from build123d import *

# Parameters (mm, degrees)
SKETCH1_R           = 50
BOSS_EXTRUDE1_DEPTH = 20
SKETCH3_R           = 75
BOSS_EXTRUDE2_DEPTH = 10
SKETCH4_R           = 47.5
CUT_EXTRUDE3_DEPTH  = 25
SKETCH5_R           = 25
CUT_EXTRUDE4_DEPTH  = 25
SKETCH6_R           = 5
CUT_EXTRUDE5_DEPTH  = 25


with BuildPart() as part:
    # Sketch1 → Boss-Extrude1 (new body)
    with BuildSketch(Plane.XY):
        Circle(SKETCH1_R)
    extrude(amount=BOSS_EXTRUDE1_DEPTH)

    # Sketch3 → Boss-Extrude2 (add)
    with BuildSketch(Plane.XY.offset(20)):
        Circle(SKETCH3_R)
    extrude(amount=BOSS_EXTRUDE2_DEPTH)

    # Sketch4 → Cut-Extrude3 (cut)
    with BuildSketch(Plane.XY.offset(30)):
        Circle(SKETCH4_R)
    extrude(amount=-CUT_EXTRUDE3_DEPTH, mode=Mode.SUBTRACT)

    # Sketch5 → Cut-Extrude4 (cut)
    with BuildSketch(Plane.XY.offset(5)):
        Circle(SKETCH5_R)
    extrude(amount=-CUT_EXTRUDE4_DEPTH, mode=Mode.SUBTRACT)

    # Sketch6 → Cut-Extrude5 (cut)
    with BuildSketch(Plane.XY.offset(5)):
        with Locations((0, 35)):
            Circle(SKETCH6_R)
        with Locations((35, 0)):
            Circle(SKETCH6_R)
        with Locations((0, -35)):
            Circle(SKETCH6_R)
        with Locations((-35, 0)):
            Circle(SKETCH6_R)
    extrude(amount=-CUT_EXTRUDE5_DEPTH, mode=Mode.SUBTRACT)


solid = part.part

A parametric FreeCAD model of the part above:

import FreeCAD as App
import Part
import Sketcher
Q = App.Units.Quantity

doc = App.newDocument("Part")
body = doc.addObject("PartDesign::Body", "Body")

# Sketch on XY plane
sketch1 = body.newObject("Sketcher::SketchObject", "Sketch")
sketch1.AttachmentSupport = (doc.getObject("XY_Plane"), [""])
sketch1.MapMode = "FlatFace"
sketch1.addGeometry(Part.Circle(App.Vector(0, 0, 0), App.Vector(0, 0, 1), 50), False)
sketch1.addConstraint(Sketcher.Constraint("Coincident", 0, 3, -1, 1))
sketch1.addConstraint(Sketcher.Constraint("Diameter", 0, Q("100 mm")))
pad1 = body.newObject("PartDesign::Pad", "Pad")
pad1.Profile = sketch1
pad1.Length = 20

# Sketch on XY plane
sketch2 = body.newObject("Sketcher::SketchObject", "Sketch001")
sketch2.AttachmentSupport = (doc.getObject("XY_Plane"), [""])
sketch2.MapMode = "FlatFace"
sketch2.AttachmentOffset = App.Placement(App.Vector(0, 0, 20), App.Rotation())
sketch2.addGeometry(Part.Circle(App.Vector(0, 0, 0), App.Vector(0, 0, 1), 75), False)
sketch2.addConstraint(Sketcher.Constraint("Coincident", 0, 3, -1, 1))
sketch2.addConstraint(Sketcher.Constraint("Diameter", 0, Q("150 mm")))
pad2 = body.newObject("PartDesign::Pad", "Pad001")
pad2.Profile = sketch2
pad2.Length = 10

# Sketch on XY plane
sketch3 = body.newObject("Sketcher::SketchObject", "Sketch002")
sketch3.AttachmentSupport = (doc.getObject("XY_Plane"), [""])
sketch3.MapMode = "FlatFace"
sketch3.AttachmentOffset = App.Placement(App.Vector(0, 0, 30), App.Rotation())
sketch3.addGeometry(Part.Circle(App.Vector(0, 0, 0), App.Vector(0, 0, 1), 48), False)
sketch3.addConstraint(Sketcher.Constraint("Coincident", 0, 3, -1, 1))
sketch3.addConstraint(Sketcher.Constraint("Diameter", 0, Q("95 mm")))
pocket1 = body.newObject("PartDesign::Pocket", "Pocket")
pocket1.Profile = sketch3
pocket1.Length = 25

# Sketch on XY plane
sketch4 = body.newObject("Sketcher::SketchObject", "Sketch003")
sketch4.AttachmentSupport = (doc.getObject("XY_Plane"), [""])
sketch4.MapMode = "FlatFace"
sketch4.AttachmentOffset = App.Placement(App.Vector(0, 0, 5), App.Rotation())
sketch4.addGeometry(Part.Circle(App.Vector(0, 0, 0), App.Vector(0, 0, 1), 25), False)
sketch4.addConstraint(Sketcher.Constraint("Coincident", 0, 3, -1, 1))
sketch4.addConstraint(Sketcher.Constraint("Diameter", 0, Q("50 mm")))
pocket2 = body.newObject("PartDesign::Pocket", "Pocket001")
pocket2.Profile = sketch4
pocket2.Length = 25

# Sketch on XY plane
sketch5 = body.newObject("Sketcher::SketchObject", "Sketch004")
sketch5.AttachmentSupport = (doc.getObject("XY_Plane"), [""])
sketch5.MapMode = "FlatFace"
sketch5.AttachmentOffset = App.Placement(App.Vector(0, 0, 5), App.Rotation())
sketch5.addGeometry(Part.Circle(App.Vector(0, 35, 0), App.Vector(0, 0, 1), 5), False)
sketch5.addGeometry(Part.Circle(App.Vector(35, 0, 0), App.Vector(0, 0, 1), 5), False)
sketch5.addGeometry(Part.Circle(App.Vector(0, -35, 0), App.Vector(0, 0, 1), 5), False)
sketch5.addGeometry(Part.Circle(App.Vector(-35, 0, 0), App.Vector(0, 0, 1), 5), False)
sketch5.addConstraint(Sketcher.Constraint("Equal", 0, 1))
sketch5.addConstraint(Sketcher.Constraint("Equal", 1, 2))
sketch5.addConstraint(Sketcher.Constraint("Equal", 2, 3))
sketch5.addConstraint(Sketcher.Constraint("Symmetric", 0, 3, 2, 3, -1, 1))
sketch5.addConstraint(Sketcher.Constraint("Symmetric", 1, 3, 3, 3, -1, 1))
sketch5.addConstraint(Sketcher.Constraint("PointOnObject", 0, 3, -2))
sketch5.addConstraint(Sketcher.Constraint("PointOnObject", 1, 3, -1))
sketch5.addConstraint(Sketcher.Constraint("Diameter", 0, Q("10 mm")))
sketch5.addConstraint(Sketcher.Constraint("DistanceY", -1, 1, 0, 3, Q("35 mm")))
sketch5.addConstraint(Sketcher.Constraint("DistanceX", -1, 1, 1, 3, Q("35 mm")))
pocket3 = body.newObject("PartDesign::Pocket", "Pocket002")
pocket3.Profile = sketch5
pocket3.Length = 25

doc.recompute()
